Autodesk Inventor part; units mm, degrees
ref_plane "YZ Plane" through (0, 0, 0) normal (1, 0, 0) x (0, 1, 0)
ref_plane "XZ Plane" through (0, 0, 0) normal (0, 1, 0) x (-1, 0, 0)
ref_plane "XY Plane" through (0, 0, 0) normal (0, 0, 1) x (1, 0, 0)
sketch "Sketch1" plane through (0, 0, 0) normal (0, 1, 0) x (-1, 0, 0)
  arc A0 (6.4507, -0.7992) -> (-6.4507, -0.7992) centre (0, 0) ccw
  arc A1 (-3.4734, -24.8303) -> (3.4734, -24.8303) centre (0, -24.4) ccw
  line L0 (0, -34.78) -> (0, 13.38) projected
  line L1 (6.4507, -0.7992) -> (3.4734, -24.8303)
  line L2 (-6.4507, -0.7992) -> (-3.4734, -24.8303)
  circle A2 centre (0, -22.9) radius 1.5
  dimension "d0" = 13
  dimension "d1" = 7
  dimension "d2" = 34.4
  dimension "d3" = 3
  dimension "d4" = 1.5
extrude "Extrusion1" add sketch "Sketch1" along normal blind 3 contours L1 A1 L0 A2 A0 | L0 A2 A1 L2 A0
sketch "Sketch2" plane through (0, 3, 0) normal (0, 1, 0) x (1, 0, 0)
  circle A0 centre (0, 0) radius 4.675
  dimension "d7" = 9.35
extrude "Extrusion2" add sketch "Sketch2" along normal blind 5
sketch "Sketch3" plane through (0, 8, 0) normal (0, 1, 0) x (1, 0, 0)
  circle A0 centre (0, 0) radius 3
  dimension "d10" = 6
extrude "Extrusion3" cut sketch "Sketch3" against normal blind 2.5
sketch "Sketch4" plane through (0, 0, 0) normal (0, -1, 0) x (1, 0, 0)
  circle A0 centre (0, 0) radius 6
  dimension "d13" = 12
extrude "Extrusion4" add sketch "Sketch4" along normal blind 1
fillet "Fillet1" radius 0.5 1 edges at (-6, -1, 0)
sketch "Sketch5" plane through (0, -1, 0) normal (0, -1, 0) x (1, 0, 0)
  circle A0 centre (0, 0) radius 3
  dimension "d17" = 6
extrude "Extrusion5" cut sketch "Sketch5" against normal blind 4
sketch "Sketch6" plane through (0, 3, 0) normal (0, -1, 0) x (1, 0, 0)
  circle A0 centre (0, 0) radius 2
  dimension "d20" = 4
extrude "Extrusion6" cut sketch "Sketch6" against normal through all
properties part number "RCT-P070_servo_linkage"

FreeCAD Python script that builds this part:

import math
import FreeCAD as App
import Part
import Sketcher

V = App.Vector
Q = App.Units.Quantity


def edges_at(feature, points):
    """Names of the edges that pass closest to the given points."""
    edges = feature.Shape.Edges
    near = lambda p: min(range(len(edges)), key=lambda i: edges[i].distToShape(Part.Vertex(*p))[0])
    return sorted({f"Edge{near(p) + 1}" for p in points})

doc = App.newDocument("Part")
params = doc.addObject("Spreadsheet::Sheet", "Params")
for row, (alias, value) in enumerate([
    ("sketch1_diameter", "3 mm"),
    ("sketch1_radius", "6.5 mm"),
    ("sketch1_radius2", "3.5 mm"),
    ("pad1_length", "3 mm"),
    ("sketch2_diameter", "9.35 mm"),
    ("pad2_length", "5 mm"),
    ("sketch3_diameter", "6 mm"),
    ("pocket1_length", "2.5 mm"),
    ("sketch4_diameter", "12 mm"),
    ("pad3_length", "1 mm"),
    ("fillet_radius", "0.5 mm"),
    ("sketch5_diameter", "6 mm"),
    ("pocket2_length", "4 mm"),
    ("sketch6_diameter", "4 mm"),
], start=1):
    params.set(f"A{row}", alias)
    params.set(f"B{row}", "=" + value)
    params.setAlias(f"B{row}", alias)

body = doc.addObject("PartDesign::Body", "Body")

sketch1 = body.newObject("Sketcher::SketchObject", "Sketch")
sketch1.AttachmentSupport = (doc.getObject("XZ_Plane"), [""])
sketch1.MapMode = "FlatFace"
sketch1.addGeometry([
    Part.LineSegment(V(-3.5, -24.8, 0), V(-6.5, -0.8, 0)),
    Part.ArcOfCircle(Part.Circle(V(0, 0, 0), V(0, 0, 1), 6.5), math.radians(-7), math.radians(187)),
    Part.LineSegment(V(6.5, -0.8, 0), V(3.5, -24.8, 0)),
    Part.ArcOfCircle(Part.Circle(V(0, -24.4, 0), V(0, 0, 1), 3.5), math.radians(-173), math.radians(-7)),
    Part.Circle(V(0, -22.9, 0), V(0, 0, 1), 1.5),
], False)
sketch1.addConstraint([
    Sketcher.Constraint("Tangent", 0, 2, 1, 2),
    Sketcher.Constraint("Tangent", 1, 1, 2, 1),
    Sketcher.Constraint("Tangent", 2, 2, 3, 2),
    Sketcher.Constraint("Tangent", 3, 1, 0, 1),
    Sketcher.Constraint("Coincident", 1, 3, -1, 1),
    Sketcher.Constraint("PointOnObject", 3, 3, -2),
    Sketcher.Constraint("PointOnObject", 4, 3, -2),
    Sketcher.Constraint("Diameter", 4, Q("3 mm")),
    Sketcher.Constraint("Radius", 1, Q("6.5 mm")),
    Sketcher.Constraint("Radius", 3, Q("3.5 mm")),
    Sketcher.Constraint("DistanceY", 3, 3, 4, 3, Q("1.5 mm")),
    Sketcher.Constraint("DistanceY", 3, 3, -1, 1, Q("24.4 mm")),
])
sketch1.setExpression("Constraints[7]", "Params.sketch1_diameter")
sketch1.setExpression("Constraints[8]", "Params.sketch1_radius")
sketch1.setExpression("Constraints[9]", "Params.sketch1_radius2")
pad1 = body.newObject("PartDesign::Pad", "Pad")
pad1.Profile = sketch1
pad1.setExpression("Length", "Params.pad1_length")
pad1.Reversed = True

sketch2 = body.newObject("Sketcher::SketchObject", "Sketch001")
sketch2.AttachmentSupport = (doc.getObject("XZ_Plane"), [""])
sketch2.MapMode = "FlatFace"
sketch2.AttachmentOffset = App.Placement(V(0, 0, -3), App.Rotation())
sketch2.addGeometry(Part.Circle(V(0, 0, 0), V(0, 0, 1), 4.7), False)
sketch2.addConstraint([
    Sketcher.Constraint("Coincident", 0, 3, -1, 1),
    Sketcher.Constraint("Diameter", 0, Q("9.35 mm")),
])
sketch2.setExpression("Constraints[1]", "Params.sketch2_diameter")
pad2 = body.newObject("PartDesign::Pad", "Pad001")
pad2.Profile = sketch2
pad2.setExpression("Length", "Params.pad2_length")
pad2.Reversed = True

sketch3 = body.newObject("Sketcher::SketchObject", "Sketch002")
sketch3.AttachmentSupport = (doc.getObject("XZ_Plane"), [""])
sketch3.MapMode = "FlatFace"
sketch3.AttachmentOffset = App.Placement(V(0, 0, -8), App.Rotation())
sketch3.addGeometry(Part.Circle(V(0, 0, 0), V(0, 0, 1), 3), False)
sketch3.addConstraint([
    Sketcher.Constraint("Coincident", 0, 3, -1, 1),
    Sketcher.Constraint("Diameter", 0, Q("6 mm")),
])
sketch3.setExpression("Constraints[1]", "Params.sketch3_diameter")
pocket1 = body.newObject("PartDesign::Pocket", "Pocket")
pocket1.Profile = sketch3
pocket1.setExpression("Length", "Params.pocket1_length")
pocket1.Reversed = True

sketch4 = body.newObject("Sketcher::SketchObject", "Sketch003")
sketch4.AttachmentSupport = (doc.getObject("XZ_Plane"), [""])
sketch4.MapMode = "FlatFace"
sketch4.addGeometry(Part.Circle(V(0, 0, 0), V(0, 0, 1), 6), False)
sketch4.addConstraint([
    Sketcher.Constraint("Coincident", 0, 3, -1, 1),
    Sketcher.Constraint("Diameter", 0, Q("12 mm")),
])
sketch4.setExpression("Constraints[1]", "Params.sketch4_diameter")
pad3 = body.newObject("PartDesign::Pad", "Pad002")
pad3.Profile = sketch4
pad3.setExpression("Length", "Params.pad3_length")
doc.recompute()

fillet = body.newObject("PartDesign::Fillet", "Fillet")
fillet.Base = (pad3, edges_at(pad3, [(-6, -1, 0)]))
fillet.setExpression("Radius", "Params.fillet_radius")

sketch5 = body.newObject("Sketcher::SketchObject", "Sketch004")
sketch5.AttachmentSupport = (doc.getObject("XZ_Plane"), [""])
sketch5.MapMode = "FlatFace"
sketch5.AttachmentOffset = App.Placement(V(0, 0, 1), App.Rotation())
sketch5.addGeometry(Part.Circle(V(0, 0, 0), V(0, 0, 1), 3), False)
sketch5.addConstraint([
    Sketcher.Constraint("Coincident", 0, 3, -1, 1),
    Sketcher.Constraint("Diameter", 0, Q("6 mm")),
])
sketch5.setExpression("Constraints[1]", "Params.sketch5_diameter")
pocket2 = body.newObject("PartDesign::Pocket", "Pocket001")
pocket2.Profile = sketch5
pocket2.setExpression("Length", "Params.pocket2_length")

sketch6 = body.newObject("Sketcher::SketchObject", "Sketch005")
sketch6.AttachmentSupport = (doc.getObject("XZ_Plane"), [""])
sketch6.MapMode = "FlatFace"
sketch6.AttachmentOffset = App.Placement(V(0, 0, -3), App.Rotation())
sketch6.addGeometry(Part.Circle(V(0, 0, 0), V(0, 0, 1), 2), False)
sketch6.addConstraint([
    Sketcher.Constraint("Coincident", 0, 3, -1, 1),
    Sketcher.Constraint("Diameter", 0, Q("4 mm")),
])
sketch6.setExpression("Constraints[1]", "Params.sketch6_diameter")
pocket3 = body.newObject("PartDesign::Pocket", "Pocket002")
pocket3.Profile = sketch6
pocket3.Type = "ThroughAll"

doc.recompute()
